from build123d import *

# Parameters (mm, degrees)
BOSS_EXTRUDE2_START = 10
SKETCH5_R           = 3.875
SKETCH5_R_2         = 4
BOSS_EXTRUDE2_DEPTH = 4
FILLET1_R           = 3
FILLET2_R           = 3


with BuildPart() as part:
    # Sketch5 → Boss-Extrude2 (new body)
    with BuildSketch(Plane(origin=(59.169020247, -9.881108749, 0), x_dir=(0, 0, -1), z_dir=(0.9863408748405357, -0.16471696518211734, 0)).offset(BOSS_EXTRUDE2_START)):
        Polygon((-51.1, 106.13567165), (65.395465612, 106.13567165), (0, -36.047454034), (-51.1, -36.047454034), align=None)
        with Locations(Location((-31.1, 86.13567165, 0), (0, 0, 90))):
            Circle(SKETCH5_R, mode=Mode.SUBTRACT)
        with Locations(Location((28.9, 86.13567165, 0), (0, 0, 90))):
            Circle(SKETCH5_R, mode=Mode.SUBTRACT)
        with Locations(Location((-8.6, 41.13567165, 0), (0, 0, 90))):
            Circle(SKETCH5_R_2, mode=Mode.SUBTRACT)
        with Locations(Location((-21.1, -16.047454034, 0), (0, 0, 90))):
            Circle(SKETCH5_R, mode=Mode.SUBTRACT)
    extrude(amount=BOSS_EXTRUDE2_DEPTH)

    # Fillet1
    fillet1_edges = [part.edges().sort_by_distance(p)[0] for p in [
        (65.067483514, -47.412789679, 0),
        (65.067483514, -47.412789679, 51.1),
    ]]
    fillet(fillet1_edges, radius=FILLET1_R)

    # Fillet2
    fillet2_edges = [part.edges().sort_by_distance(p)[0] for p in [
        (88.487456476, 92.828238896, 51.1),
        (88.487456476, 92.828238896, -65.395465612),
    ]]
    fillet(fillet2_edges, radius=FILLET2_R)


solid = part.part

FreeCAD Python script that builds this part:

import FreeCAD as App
import Part
import Sketcher
Q = App.Units.Quantity


def edges_at(feature, points):
    """Names of the edges that pass closest to the given points."""
    edges = feature.Shape.Edges
    near = lambda p: min(range(len(edges)), key=lambda i: edges[i].distToShape(Part.Vertex(*p))[0])
    return sorted({f"Edge{near(p) + 1}" for p in points})

doc = App.newDocument("Part")
body = doc.addObject("PartDesign::Body", "Body")

sketch1 = doc.addObject("Sketcher::SketchObject", "Sketch")
body.addObject(sketch1)
sketch1.Placement = App.Placement(App.Vector(69.032429, -11.528278, 0), App.Rotation(App.Vector(0, 0, -1), App.Vector(0.164716965, 0.986340875, 0), App.Vector(0.986340875, -0.164716965, 0), "ZXY"))
sketch1.addGeometry([
    Part.LineSegment(App.Vector(65.4, 106.1, 0), App.Vector(-51.1, 106.1, 0)),
    Part.LineSegment(App.Vector(-51.1, 106.1, 0), App.Vector(-51.1, -36, 0)),
    Part.LineSegment(App.Vector(-51.1, -36, 0), App.Vector(0, -36, 0)),
    Part.LineSegment(App.Vector(0, -36, 0), App.Vector(65.4, 106.1, 0)),
    Part.Circle(App.Vector(-21.1, -16, 0), App.Vector(0, 0, 1), 3.9),
    Part.Circle(App.Vector(28.9, 86.1, 0), App.Vector(0, 0, 1), 3.9),
    Part.Circle(App.Vector(-8.6, 41.1, 0), App.Vector(0, 0, 1), 4),
    Part.Circle(App.Vector(-31.1, 86.1, 0), App.Vector(0, 0, 1), 3.9),
], False)
sketch1.addConstraint([
    Sketcher.Constraint("Coincident", 0, 2, 1, 1),
    Sketcher.Constraint("Coincident", 1, 2, 2, 1),
    Sketcher.Constraint("Coincident", 2, 2, 3, 1),
    Sketcher.Constraint("Coincident", 3, 2, 0, 1),
    Sketcher.Constraint("Horizontal", 0),
    Sketcher.Constraint("Vertical", 1),
    Sketcher.Constraint("Horizontal", 2),
    Sketcher.Constraint("Equal", 4, 5),
    Sketcher.Constraint("Equal", 5, 7),
    Sketcher.Constraint("PointOnObject", 2, 2, -2),
    Sketcher.Constraint("Horizontal", 5, 3, 7, 3),
    Sketcher.Constraint("Diameter", 6, Q("8 mm")),
    Sketcher.Constraint("Diameter", 4, Q("7.75 mm")),
    Sketcher.Constraint("DistanceX", 2, 1, 2, 2, Q("51.1 mm")),
    Sketcher.Constraint("DistanceX", 4, 3, 5, 3, Q("50 mm")),
    Sketcher.Constraint("DistanceY", 6, 3, 5, 3, Q("45 mm")),
    Sketcher.Constraint("DistanceX", 7, 3, 5, 3, Q("60 mm")),
    Sketcher.Constraint("DistanceX", 0, 2, 7, 3, Q("20 mm")),
    Sketcher.Constraint("DistanceY", 7, 3, 0, 2, Q("20 mm")),
    Sketcher.Constraint("DistanceY", 1, 2, 4, 3, Q("20 mm")),
    Sketcher.Constraint("DistanceX", 6, 3, -1, 1, Q("8.6 mm")),
    Sketcher.Constraint("DistanceX", 0, 2, 0, 1, Q("116.495466 mm")),
    Sketcher.Constraint("DistanceY", 1, 2, 1, 1, Q("142.183126 mm")),
    Sketcher.Constraint("DistanceY", -1, 1, 5, 3, Q("86.135672 mm")),
])
pad1 = doc.addObject("PartDesign::Pad", "Pad")
body.addObject(pad1)
pad1.Profile = sketch1
pad1.Length = 4
doc.recompute()

fillet = doc.addObject("PartDesign::Fillet", "Fillet")
body.addObject(fillet)
fillet.Base = (pad1, edges_at(pad1, [(65.067, -47.413, 0), (65.067, -47.413, 51.1)]))
fillet.Radius = 3
doc.recompute()

fillet2 = doc.addObject("PartDesign::Fillet", "Fillet001")
body.addObject(fillet2)
fillet2.Base = (fillet, edges_at(fillet, [(88.487, 92.828, 51.1), (88.487, 92.828, -65.395)]))
fillet2.Radius = 3

doc.recompute()
